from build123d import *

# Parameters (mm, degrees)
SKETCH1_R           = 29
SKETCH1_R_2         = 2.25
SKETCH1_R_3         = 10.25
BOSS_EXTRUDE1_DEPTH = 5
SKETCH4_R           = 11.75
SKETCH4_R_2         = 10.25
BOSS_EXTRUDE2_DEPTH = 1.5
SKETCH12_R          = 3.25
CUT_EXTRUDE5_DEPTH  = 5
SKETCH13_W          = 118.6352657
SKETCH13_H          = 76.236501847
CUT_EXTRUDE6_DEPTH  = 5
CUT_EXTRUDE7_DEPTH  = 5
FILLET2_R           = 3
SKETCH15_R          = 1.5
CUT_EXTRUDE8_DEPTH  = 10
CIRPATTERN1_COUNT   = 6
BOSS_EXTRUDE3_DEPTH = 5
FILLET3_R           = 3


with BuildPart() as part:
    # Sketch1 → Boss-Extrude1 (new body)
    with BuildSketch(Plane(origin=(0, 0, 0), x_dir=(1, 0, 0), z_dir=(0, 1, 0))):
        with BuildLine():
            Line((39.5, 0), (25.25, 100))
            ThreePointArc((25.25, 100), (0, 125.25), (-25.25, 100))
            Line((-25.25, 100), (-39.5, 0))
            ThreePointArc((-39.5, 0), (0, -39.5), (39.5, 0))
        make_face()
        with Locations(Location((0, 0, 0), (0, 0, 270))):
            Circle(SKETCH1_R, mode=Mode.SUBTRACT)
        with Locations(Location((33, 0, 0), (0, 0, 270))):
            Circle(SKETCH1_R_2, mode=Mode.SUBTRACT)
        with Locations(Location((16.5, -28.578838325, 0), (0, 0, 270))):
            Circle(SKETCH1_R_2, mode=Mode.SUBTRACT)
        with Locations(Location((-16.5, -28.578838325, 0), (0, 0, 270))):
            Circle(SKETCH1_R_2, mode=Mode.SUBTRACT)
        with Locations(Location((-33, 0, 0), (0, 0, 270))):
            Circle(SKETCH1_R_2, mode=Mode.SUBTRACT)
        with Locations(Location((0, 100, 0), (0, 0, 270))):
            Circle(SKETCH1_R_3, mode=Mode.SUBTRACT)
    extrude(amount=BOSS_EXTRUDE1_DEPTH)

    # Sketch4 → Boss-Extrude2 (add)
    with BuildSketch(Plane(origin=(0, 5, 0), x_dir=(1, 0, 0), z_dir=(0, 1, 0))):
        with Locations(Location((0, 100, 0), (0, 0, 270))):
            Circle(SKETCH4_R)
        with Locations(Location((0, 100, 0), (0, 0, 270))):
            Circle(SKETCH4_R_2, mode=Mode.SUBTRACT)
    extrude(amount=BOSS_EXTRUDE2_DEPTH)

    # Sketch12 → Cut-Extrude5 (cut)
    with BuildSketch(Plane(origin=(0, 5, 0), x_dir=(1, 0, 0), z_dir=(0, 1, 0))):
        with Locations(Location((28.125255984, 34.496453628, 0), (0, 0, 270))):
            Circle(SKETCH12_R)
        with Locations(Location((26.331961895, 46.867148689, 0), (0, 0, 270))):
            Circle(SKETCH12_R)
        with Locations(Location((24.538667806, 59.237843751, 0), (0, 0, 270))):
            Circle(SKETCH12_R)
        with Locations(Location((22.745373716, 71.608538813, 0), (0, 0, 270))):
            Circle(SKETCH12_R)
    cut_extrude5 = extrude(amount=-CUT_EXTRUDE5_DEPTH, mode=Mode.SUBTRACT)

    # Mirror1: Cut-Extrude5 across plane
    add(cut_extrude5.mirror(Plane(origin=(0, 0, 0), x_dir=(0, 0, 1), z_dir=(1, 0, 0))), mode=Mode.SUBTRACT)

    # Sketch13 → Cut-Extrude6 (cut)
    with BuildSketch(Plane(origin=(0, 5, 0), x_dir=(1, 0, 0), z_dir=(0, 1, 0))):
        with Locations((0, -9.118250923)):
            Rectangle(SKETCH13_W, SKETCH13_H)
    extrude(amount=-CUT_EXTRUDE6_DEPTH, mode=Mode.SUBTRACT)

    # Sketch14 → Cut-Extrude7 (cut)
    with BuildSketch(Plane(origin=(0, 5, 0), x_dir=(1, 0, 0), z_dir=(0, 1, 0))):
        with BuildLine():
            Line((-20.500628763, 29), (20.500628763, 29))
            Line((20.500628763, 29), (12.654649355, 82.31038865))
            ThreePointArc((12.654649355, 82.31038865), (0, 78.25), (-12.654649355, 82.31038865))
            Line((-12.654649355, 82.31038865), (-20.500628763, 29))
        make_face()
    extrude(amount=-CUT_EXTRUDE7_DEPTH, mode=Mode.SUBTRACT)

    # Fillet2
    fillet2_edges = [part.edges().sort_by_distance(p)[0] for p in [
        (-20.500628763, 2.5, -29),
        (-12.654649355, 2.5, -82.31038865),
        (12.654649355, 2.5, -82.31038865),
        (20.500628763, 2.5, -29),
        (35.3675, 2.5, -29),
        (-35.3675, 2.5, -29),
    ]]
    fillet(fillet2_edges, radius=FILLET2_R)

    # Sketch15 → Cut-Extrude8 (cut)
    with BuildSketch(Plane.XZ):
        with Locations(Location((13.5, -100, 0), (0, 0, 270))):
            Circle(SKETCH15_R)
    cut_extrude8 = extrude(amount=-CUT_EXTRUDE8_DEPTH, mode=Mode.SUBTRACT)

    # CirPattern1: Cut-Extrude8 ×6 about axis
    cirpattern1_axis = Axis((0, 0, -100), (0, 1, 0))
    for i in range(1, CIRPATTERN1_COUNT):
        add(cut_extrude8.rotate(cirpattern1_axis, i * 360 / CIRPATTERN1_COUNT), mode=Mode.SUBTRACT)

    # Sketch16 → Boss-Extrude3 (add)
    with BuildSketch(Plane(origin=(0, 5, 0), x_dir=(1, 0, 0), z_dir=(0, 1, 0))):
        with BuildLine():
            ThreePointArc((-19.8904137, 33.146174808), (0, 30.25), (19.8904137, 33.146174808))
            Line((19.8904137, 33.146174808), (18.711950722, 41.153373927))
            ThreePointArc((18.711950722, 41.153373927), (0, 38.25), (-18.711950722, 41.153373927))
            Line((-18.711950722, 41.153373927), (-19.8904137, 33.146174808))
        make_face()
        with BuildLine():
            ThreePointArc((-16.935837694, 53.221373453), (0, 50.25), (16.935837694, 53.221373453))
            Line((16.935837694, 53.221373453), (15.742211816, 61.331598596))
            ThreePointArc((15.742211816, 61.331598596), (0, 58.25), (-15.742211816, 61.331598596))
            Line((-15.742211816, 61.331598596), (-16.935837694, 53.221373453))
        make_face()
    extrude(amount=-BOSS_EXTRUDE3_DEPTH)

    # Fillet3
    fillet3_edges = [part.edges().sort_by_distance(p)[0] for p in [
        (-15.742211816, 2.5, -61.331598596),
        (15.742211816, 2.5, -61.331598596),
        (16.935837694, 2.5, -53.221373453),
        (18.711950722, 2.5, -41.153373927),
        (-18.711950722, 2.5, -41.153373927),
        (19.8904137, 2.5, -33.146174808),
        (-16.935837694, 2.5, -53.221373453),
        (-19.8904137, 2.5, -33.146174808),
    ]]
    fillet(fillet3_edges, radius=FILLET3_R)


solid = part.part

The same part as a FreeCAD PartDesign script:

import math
import FreeCAD as App
import Part
import Sketcher
Q = App.Units.Quantity


def edges_at(feature, points):
    """Names of the edges that pass closest to the given points."""
    edges = feature.Shape.Edges
    near = lambda p: min(range(len(edges)), key=lambda i: edges[i].distToShape(Part.Vertex(*p))[0])
    return sorted({f"Edge{near(p) + 1}" for p in points})


def add_polygon(sketch, points):
    """Adds a closed chain of lines whose ends are joined by coincident constraints."""
    first, n = sketch.GeometryCount, len(points)
    for a, b in zip(points, points[1:] + points[:1]):
        sketch.addGeometry(Part.LineSegment(App.Vector(*a, 0), App.Vector(*b, 0)), False)
    for i in range(n):
        sketch.addConstraint(Sketcher.Constraint("Coincident", first + i, 2, first + (i + 1) % n, 1))

doc = App.newDocument("Part")
body = doc.addObject("PartDesign::Body", "Body")

sketch1 = body.newObject("Sketcher::SketchObject", "Sketch")
sketch1.AttachmentSupport = (doc.getObject("XZ_Plane"), [""])
sketch1.MapMode = "FlatFace"
sketch1.addGeometry([
    Part.LineSegment(App.Vector(39.5, 0, 0), App.Vector(25.2, -100, 0)),
    Part.ArcOfCircle(Part.Circle(App.Vector(0, -100, 0), App.Vector(0, 0, 1), 25.2), math.radians(180), math.radians(360)),
    Part.LineSegment(App.Vector(-25.2, -100, 0), App.Vector(-39.5, 0, 0)),
    Part.ArcOfCircle(Part.Circle(App.Vector(0, 0, 0), App.Vector(0, 0, 1), 39.5), math.radians(0), math.radians(180)),
    Part.Circle(App.Vector(-33, 0, 0), App.Vector(0, 0, 1), 2.2),
    Part.Circle(App.Vector(-16.5, 28.6, 0), App.Vector(0, 0, 1), 2.2),
    Part.Circle(App.Vector(16.5, 28.6, 0), App.Vector(0, 0, 1), 2.2),
    Part.Circle(App.Vector(0, 0, 0), App.Vector(0, 0, 1), 29),
    Part.Circle(App.Vector(33, 0, 0), App.Vector(0, 0, 1), 2.2),
    Part.Circle(App.Vector(0, -100, 0), App.Vector(0, 0, 1), 10.2),
], False)
sketch1.addConstraint([
    Sketcher.Constraint("Coincident", 0, 2, 1, 2),
    Sketcher.Constraint("Coincident", 1, 1, 2, 1),
    Sketcher.Constraint("Coincident", 2, 2, 3, 2),
    Sketcher.Constraint("Coincident", 3, 1, 0, 1),
    Sketcher.Constraint("Coincident", 3, 3, -1, 1),
    Sketcher.Constraint("Coincident", 7, 3, -1, 1),
    Sketcher.Constraint("Coincident", 9, 3, 1, 3),
    Sketcher.Constraint("Equal", 4, 5),
    Sketcher.Constraint("Equal", 5, 6),
    Sketcher.Constraint("Equal", 6, 8),
    Sketcher.Constraint("Symmetric", 4, 3, 8, 3, -1, 1),
    Sketcher.Constraint("Symmetric", 5, 3, 6, 3, -2),
    Sketcher.Constraint("Symmetric", 0, 2, 1, 1, -2),
    Sketcher.Constraint("PointOnObject", 4, 3, -1),
    Sketcher.Constraint("PointOnObject", 2, 2, -1),
    Sketcher.Constraint("PointOnObject", 3, 1, -1),
    Sketcher.Constraint("Horizontal", 9, 3, 0, 2),
    Sketcher.Constraint("Diameter", 7, Q("58 mm")),
    Sketcher.Constraint("Diameter", 4, Q("4.5 mm")),
    Sketcher.Constraint("Diameter", 9, Q("20.5 mm")),
    Sketcher.Constraint("Radius", 3, Q("39.5 mm")),
    Sketcher.Constraint("Radius", 1, Q("25.25 mm")),
    Sketcher.Constraint("DistanceY", 1, 3, -1, 1, Q("100 mm")),
    Sketcher.Constraint("DistanceX", 4, 3, -1, 1, Q("33 mm")),
    Sketcher.Constraint("DistanceX", 5, 3, 6, 3, Q("33 mm")),
    Sketcher.Constraint("DistanceY", -1, 1, 5, 3, Q("28.578838 mm")),
])
pad1 = body.newObject("PartDesign::Pad", "Pad")
pad1.Profile = sketch1
pad1.Length = 5
pad1.Reversed = True

sketch2 = body.newObject("Sketcher::SketchObject", "Sketch001")
sketch2.AttachmentSupport = (doc.getObject("XZ_Plane"), [""])
sketch2.MapMode = "FlatFace"
sketch2.AttachmentOffset = App.Placement(App.Vector(0, 0, -5), App.Rotation())
sketch2.addGeometry([
    Part.Circle(App.Vector(0, -100, 0), App.Vector(0, 0, 1), 12),
    Part.Circle(App.Vector(0, -100, 0), App.Vector(0, 0, 1), 10),
], False)
sketch2.addConstraint([
    Sketcher.Constraint("Coincident", 1, 3, 0, 3),
    Sketcher.Constraint("PointOnObject", 0, 3, -2),
    Sketcher.Constraint("Diameter", 0, Q("23.5 mm")),
    Sketcher.Constraint("Diameter", 1, Q("20.5 mm")),
    Sketcher.Constraint("DistanceY", 0, 3, -1, 1, Q("100 mm")),
])
pad2 = body.newObject("PartDesign::Pad", "Pad001")
pad2.Profile = sketch2
pad2.Length = 1.5
pad2.Reversed = True

sketch3 = body.newObject("Sketcher::SketchObject", "Sketch002")
sketch3.AttachmentSupport = (doc.getObject("XZ_Plane"), [""])
sketch3.MapMode = "FlatFace"
sketch3.AttachmentOffset = App.Placement(App.Vector(0, 0, -5), App.Rotation())
sketch3.addGeometry([
    Part.Circle(App.Vector(28.1, -34.5, 0), App.Vector(0, 0, 1), 3.2),
    Part.Circle(App.Vector(26.3, -46.9, 0), App.Vector(0, 0, 1), 3.2),
    Part.Circle(App.Vector(24.5, -59.2, 0), App.Vector(0, 0, 1), 3.2),
    Part.Circle(App.Vector(22.7, -71.6, 0), App.Vector(0, 0, 1), 3.2),
], False)
sketch3.addConstraint([
    Sketcher.Constraint("Equal", 0, 1),
    Sketcher.Constraint("Equal", 1, 2),
    Sketcher.Constraint("Equal", 2, 3),
    Sketcher.Constraint("Diameter", 0, Q("6.5 mm")),
    Sketcher.Constraint("DistanceX", -1, 1, 1, 3, Q("26.331962 mm")),
    Sketcher.Constraint("DistanceY", 1, 3, -1, 1, Q("46.867149 mm")),
    Sketcher.Constraint("DistanceY", 3, 3, -1, 1, Q("71.608539 mm")),
    Sketcher.Constraint("DistanceX", 2, 3, 0, 3, Q("3.586588 mm")),
    Sketcher.Constraint("DistanceY", 2, 3, 0, 3, Q("24.74139 mm")),
    Sketcher.Constraint("DistanceX", 3, 3, 1, 3, Q("3.586588 mm")),
    Sketcher.Constraint("DistanceX", -1, 1, 0, 3, Q("28.125256 mm")),
    Sketcher.Constraint("DistanceY", 0, 3, -1, 1, Q("34.496454 mm")),
])
pocket1 = body.newObject("PartDesign::Pocket", "Pocket")
pocket1.Profile = sketch3
pocket1.Length = 5
pocket1.Reversed = True
doc.recompute()

mirrored = body.newObject("PartDesign::Mirrored", "Mirrored")
mirrored.Originals = [pocket1]
mirrored.MirrorPlane = (doc.getObject("YZ_Plane"), [""])
body.Tip = mirrored

sketch4 = body.newObject("Sketcher::SketchObject", "Sketch003")
sketch4.AttachmentSupport = (doc.getObject("XZ_Plane"), [""])
sketch4.MapMode = "FlatFace"
sketch4.AttachmentOffset = App.Placement(App.Vector(0, 0, -5), App.Rotation())
add_polygon(sketch4, [(-59, -29), (-59, 47), (59, 47), (59, -29)])
sketch4.addConstraint([
    Sketcher.Constraint("Vertical", 0),
    Sketcher.Constraint("Horizontal", 1),
    Sketcher.Constraint("Vertical", 2),
    Sketcher.Constraint("Horizontal", 3),
    Sketcher.Constraint("DistanceY", 2, 2, -1, 1, Q("29 mm")),
    Sketcher.Constraint("DistanceY", 0, 1, 0, 2, Q("76.236502 mm")),
    Sketcher.Constraint("DistanceX", 1, 1, 1, 2, Q("118.635266 mm")),
    Sketcher.Constraint("DistanceX", 0, 2, -1, 1, Q("59.317633 mm")),
])
pocket2 = body.newObject("PartDesign::Pocket", "Pocket001")
pocket2.Profile = sketch4
pocket2.Length = 5
pocket2.Reversed = True

sketch5 = body.newObject("Sketcher::SketchObject", "Sketch004")
sketch5.AttachmentSupport = (doc.getObject("XZ_Plane"), [""])
sketch5.MapMode = "FlatFace"
sketch5.AttachmentOffset = App.Placement(App.Vector(0, 0, -5), App.Rotation())
sketch5.addGeometry([
    Part.LineSegment(App.Vector(-21, -29, 0), App.Vector(21, -29, 0)),
    Part.LineSegment(App.Vector(21, -29, 0), App.Vector(13, -82, 0)),
    Part.ArcOfCircle(Part.Circle(App.Vector(0, -100, 0), App.Vector(0, 0, 1), 22), math.radians(54), math.radians(126)),
    Part.LineSegment(App.Vector(-13, -82, 0), App.Vector(-21, -29, 0)),
], False)
sketch5.addConstraint([
    Sketcher.Constraint("Coincident", 0, 2, 1, 1),
    Sketcher.Constraint("Coincident", 1, 2, 2, 1),
    Sketcher.Constraint("Coincident", 2, 2, 3, 1),
    Sketcher.Constraint("Coincident", 3, 2, 0, 1),
    Sketcher.Constraint("Horizontal", 0),
    Sketcher.Constraint("Symmetric", 1, 2, 2, 2, -2),
    Sketcher.Constraint("Equal", 1, 3),
    Sketcher.Constraint("Radius", 2, Q("21.75 mm")),
    Sketcher.Constraint("DistanceY", 2, 3, -1, 1, Q("100 mm")),
    Sketcher.Constraint("DistanceY", 0, 2, -1, 1, Q("29 mm")),
    Sketcher.Constraint("DistanceX", 2, 2, 1, 2, Q("25.309299 mm")),
    Sketcher.Constraint("DistanceX", 0, 1, 0, 2, Q("41.001258 mm")),
])
pocket3 = body.newObject("PartDesign::Pocket", "Pocket002")
pocket3.Profile = sketch5
pocket3.Length = 5
pocket3.Reversed = True
doc.recompute()

fillet = body.newObject("PartDesign::Fillet", "Fillet")
fillet.Base = (pocket3, edges_at(pocket3, [
    (-20.501, 2.5, -29),
    (-12.655, 2.5, -82.31),
    (12.655, 2.5, -82.31),
    (20.501, 2.5, -29),
    (35.367, 2.5, -29),
    (-35.367, 2.5, -29),
]))
fillet.Radius = 3

sketch6 = body.newObject("Sketcher::SketchObject", "Sketch005")
sketch6.AttachmentSupport = (doc.getObject("XZ_Plane"), [""])
sketch6.MapMode = "FlatFace"
sketch6.addGeometry(Part.Circle(App.Vector(13.5, -100, 0), App.Vector(0, 0, 1), 1.5), False)
sketch6.addConstraint([
    Sketcher.Constraint("Diameter", 0, Q("3 mm")),
    Sketcher.Constraint("DistanceY", 0, 3, -1, 1, Q("100 mm")),
    Sketcher.Constraint("DistanceX", -1, 1, 0, 3, Q("13.5 mm")),
])
pocket4 = body.newObject("PartDesign::Pocket", "Pocket003")
pocket4.Profile = sketch6
pocket4.Length = 10
doc.recompute()

datumline = body.newObject("PartDesign::Line", "DatumLine")
datumline.Placement = App.Placement(App.Vector(0, 0, -100), App.Rotation(App.Vector(0, 0, 1), App.Vector(0, 1, 0)))
polarpattern = body.newObject("PartDesign::PolarPattern", "PolarPattern")
polarpattern.Originals = [pocket4]
polarpattern.Axis = (datumline, [""])
polarpattern.Angle = 360
polarpattern.Occurrences = 6
body.Tip = polarpattern

sketch7 = body.newObject("Sketcher::SketchObject", "Sketch006")
sketch7.AttachmentSupport = (doc.getObject("XZ_Plane"), [""])
sketch7.MapMode = "FlatFace"
sketch7.AttachmentOffset = App.Placement(App.Vector(0, 0, -5), App.Rotation())
sketch7.addGeometry([
    Part.ArcOfCircle(Part.Circle(App.Vector(0, -100, 0), App.Vector(0, 0, 1), 70), math.radians(73), math.radians(107)),
    Part.LineSegment(App.Vector(20, -33, 0), App.Vector(19, -41, 0)),
    Part.ArcOfCircle(Part.Circle(App.Vector(0, -100, 0), App.Vector(0, 0, 1), 62), math.radians(72), math.radians(108)),
    Part.LineSegment(App.Vector(-19, -41, 0), App.Vector(-20, -33, 0)),
    Part.ArcOfCircle(Part.Circle(App.Vector(0, -100, 0), App.Vector(0, 0, 1), 50), math.radians(70), math.radians(110)),
    Part.LineSegment(App.Vector(17, -53, 0), App.Vector(16, -61, 0)),
    Part.ArcOfCircle(Part.Circle(App.Vector(0, -100, 0), App.Vector(0, 0, 1), 42), math.radians(68), math.radians(112)),
    Part.LineSegment(App.Vector(-16, -61, 0), App.Vector(-17, -53, 0)),
], False)
sketch7.addConstraint([
    Sketcher.Constraint("Coincident", 0, 1, 1, 1),
    Sketcher.Constraint("Coincident", 1, 2, 2, 1),
    Sketcher.Constraint("Coincident", 2, 2, 3, 1),
    Sketcher.Constraint("Coincident", 3, 2, 0, 2),
    Sketcher.Constraint("Coincident", 4, 1, 5, 1),
    Sketcher.Constraint("Coincident", 5, 2, 6, 1),
    Sketcher.Constraint("Coincident", 6, 2, 7, 1),
    Sketcher.Constraint("Coincident", 7, 2, 4, 2),
    Sketcher.Constraint("Coincident", 2, 3, 0, 3),
    Sketcher.Constraint("Coincident", 4, 3, 0, 3),
    Sketcher.Constraint("Coincident", 6, 3, 0, 3),
    Sketcher.Constraint("Symmetric", 1, 2, 2, 2, -2),
    Sketcher.Constraint("Parallel", 1, 5),
    Sketcher.Constraint("Parallel", 3, 7),
    Sketcher.Constraint("Horizontal", 0, 1, 3, 2),
    Sketcher.Constraint("Horizontal", 5, 2, 6, 2),
    Sketcher.Constraint("Radius", 0, Q("69.75 mm")),
    Sketcher.Constraint("Radius", 2, Q("61.75 mm")),
    Sketcher.Constraint("Radius", 4, Q("49.75 mm")),
    Sketcher.Constraint("Radius", 6, Q("41.75 mm")),
    Sketcher.Constraint("DistanceY", 0, 3, -1, 1, Q("100 mm")),
    Sketcher.Constraint("DistanceY", 4, 1, 1, 2, Q("12.068 mm")),
    Sketcher.Constraint("DistanceY", 5, 2, -1, 1, Q("61.331599 mm")),
    Sketcher.Constraint("DistanceY", 1, 2, 0, 1, Q("8.007199 mm")),
])
pad3 = body.newObject("PartDesign::Pad", "Pad002")
pad3.Profile = sketch7
pad3.Length = 5
doc.recompute()

fillet2 = body.newObject("PartDesign::Fillet", "Fillet001")
fillet2.Base = (pad3, edges_at(pad3, [
    (-15.742, 2.5, -61.332),
    (15.742, 2.5, -61.332),
    (16.936, 2.5, -53.221),
    (18.712, 2.5, -41.153),
    (-18.712, 2.5, -41.153),
    (19.89, 2.5, -33.146),
    (-16.936, 2.5, -53.221),
    (-19.89, 2.5, -33.146),
]))
fillet2.Radius = 3

doc.recompute()
